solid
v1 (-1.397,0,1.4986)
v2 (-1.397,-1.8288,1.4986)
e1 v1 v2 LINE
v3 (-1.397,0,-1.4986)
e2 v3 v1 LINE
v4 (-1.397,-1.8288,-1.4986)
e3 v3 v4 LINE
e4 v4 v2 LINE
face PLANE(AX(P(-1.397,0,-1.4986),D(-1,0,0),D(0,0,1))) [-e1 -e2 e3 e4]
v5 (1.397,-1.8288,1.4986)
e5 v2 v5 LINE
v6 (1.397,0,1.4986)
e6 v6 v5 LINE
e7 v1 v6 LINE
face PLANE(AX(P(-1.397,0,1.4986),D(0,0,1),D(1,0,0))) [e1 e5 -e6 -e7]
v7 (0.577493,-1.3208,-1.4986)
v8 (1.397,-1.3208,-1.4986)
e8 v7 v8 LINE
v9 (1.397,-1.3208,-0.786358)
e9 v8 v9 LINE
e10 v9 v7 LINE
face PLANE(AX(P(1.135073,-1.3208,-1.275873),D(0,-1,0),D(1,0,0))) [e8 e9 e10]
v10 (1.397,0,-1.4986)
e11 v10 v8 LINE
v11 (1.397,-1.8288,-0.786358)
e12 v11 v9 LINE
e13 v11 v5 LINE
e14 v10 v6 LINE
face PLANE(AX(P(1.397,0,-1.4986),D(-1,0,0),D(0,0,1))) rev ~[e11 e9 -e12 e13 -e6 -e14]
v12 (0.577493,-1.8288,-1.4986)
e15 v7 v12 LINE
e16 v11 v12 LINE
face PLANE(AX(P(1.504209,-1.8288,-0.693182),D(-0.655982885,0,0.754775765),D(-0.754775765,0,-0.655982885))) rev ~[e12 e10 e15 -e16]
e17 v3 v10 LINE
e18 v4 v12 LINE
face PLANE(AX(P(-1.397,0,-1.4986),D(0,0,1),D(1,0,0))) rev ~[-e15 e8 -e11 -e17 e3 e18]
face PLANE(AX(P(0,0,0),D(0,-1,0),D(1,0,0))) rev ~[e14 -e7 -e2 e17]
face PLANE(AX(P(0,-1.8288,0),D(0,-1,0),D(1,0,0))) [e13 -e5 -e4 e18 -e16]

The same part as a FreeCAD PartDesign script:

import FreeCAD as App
import Part
import Sketcher
from FreeCAD import Vector
Q = App.Units.Quantity

doc = App.newDocument("Part")
body = doc.addObject("PartDesign::Body", "Body")

# Sketch on XZ plane
sketch1 = body.newObject("Sketcher::SketchObject", "Sketch")
sketch1.AttachmentSupport = (doc.getObject("XZ_Plane"), [""])
sketch1.MapMode = "FlatFace"
sketch1.addGeometry([
    Part.LineSegment(Vector(-1.397, 1.4986, 0), Vector(-1.397, -1.4986, 0)),
    Part.LineSegment(Vector(-1.397, -1.4986, 0), Vector(1.397, -1.4986, 0)),
    Part.LineSegment(Vector(1.397, -1.4986, 0), Vector(1.397, 1.4986, 0)),
    Part.LineSegment(Vector(1.397, 1.4986, 0), Vector(-1.397, 1.4986, 0)),
], False)
sketch1.addConstraint([
    Sketcher.Constraint("Coincident", 0, 2, 1, 1),
    Sketcher.Constraint("Coincident", 1, 2, 2, 1),
    Sketcher.Constraint("Coincident", 2, 2, 3, 1),
    Sketcher.Constraint("Coincident", 3, 2, 0, 1),
    Sketcher.Constraint("Vertical", 0),
    Sketcher.Constraint("Horizontal", 1),
    Sketcher.Constraint("Vertical", 2),
    Sketcher.Constraint("Horizontal", 3),
    Sketcher.Constraint("Symmetric", 0, 2, 2, 2, -1, 1),
    Sketcher.Constraint("DistanceX", 1, 1, 1, 2, Q("0.11 in")),
    Sketcher.Constraint("DistanceY", 0, 2, 0, 1, Q("0.118 in")),
])
pad1 = body.newObject("PartDesign::Pad", "Pad")
pad1.Profile = sketch1
pad1.Length = Q("0.072 in")

# Sketch on XZ plane
sketch2 = body.newObject("Sketcher::SketchObject", "Sketch001")
sketch2.AttachmentSupport = (doc.getObject("XZ_Plane"), [""])
sketch2.MapMode = "FlatFace"
sketch2.AttachmentOffset = App.Placement(Vector(0, 0, 0.072 * 25.4), App.Rotation())
sketch2.addGeometry([
    Part.LineSegment(Vector(1.504209, -0.693182, 0), Vector(0.487083, -1.577176, 0)),
    Part.LineSegment(Vector(0.487083, -1.577176, 0), Vector(1.504209, -1.586379, 0)),
    Part.LineSegment(Vector(1.504209, -1.586379, 0), Vector(1.504209, -0.693182, 0)),
], False)
sketch2.addConstraint([
    Sketcher.Constraint("Coincident", 0, 2, 1, 1),
    Sketcher.Constraint("Coincident", 1, 2, 2, 1),
    Sketcher.Constraint("Coincident", 2, 2, 0, 1),
    Sketcher.Constraint("Vertical", 2),
    Sketcher.Constraint("DistanceY", 2, 1, 2, 2, Q("0.893197 mm")),
    Sketcher.Constraint("DistanceX", -1, 1, 1, 2, Q("1.504209 mm")),
    Sketcher.Constraint("DistanceY", 1, 2, -1, 1, Q("1.586379 mm")),
    Sketcher.Constraint("Distance", 0, Q("1.347587 mm")),
    Sketcher.Constraint("Distance", 1, Q("1.017168 mm")),
])
pocket1 = body.newObject("PartDesign::Pocket", "Pocket")
pocket1.Profile = sketch2
pocket1.Length = Q("0.02 in")

doc.recompute()
